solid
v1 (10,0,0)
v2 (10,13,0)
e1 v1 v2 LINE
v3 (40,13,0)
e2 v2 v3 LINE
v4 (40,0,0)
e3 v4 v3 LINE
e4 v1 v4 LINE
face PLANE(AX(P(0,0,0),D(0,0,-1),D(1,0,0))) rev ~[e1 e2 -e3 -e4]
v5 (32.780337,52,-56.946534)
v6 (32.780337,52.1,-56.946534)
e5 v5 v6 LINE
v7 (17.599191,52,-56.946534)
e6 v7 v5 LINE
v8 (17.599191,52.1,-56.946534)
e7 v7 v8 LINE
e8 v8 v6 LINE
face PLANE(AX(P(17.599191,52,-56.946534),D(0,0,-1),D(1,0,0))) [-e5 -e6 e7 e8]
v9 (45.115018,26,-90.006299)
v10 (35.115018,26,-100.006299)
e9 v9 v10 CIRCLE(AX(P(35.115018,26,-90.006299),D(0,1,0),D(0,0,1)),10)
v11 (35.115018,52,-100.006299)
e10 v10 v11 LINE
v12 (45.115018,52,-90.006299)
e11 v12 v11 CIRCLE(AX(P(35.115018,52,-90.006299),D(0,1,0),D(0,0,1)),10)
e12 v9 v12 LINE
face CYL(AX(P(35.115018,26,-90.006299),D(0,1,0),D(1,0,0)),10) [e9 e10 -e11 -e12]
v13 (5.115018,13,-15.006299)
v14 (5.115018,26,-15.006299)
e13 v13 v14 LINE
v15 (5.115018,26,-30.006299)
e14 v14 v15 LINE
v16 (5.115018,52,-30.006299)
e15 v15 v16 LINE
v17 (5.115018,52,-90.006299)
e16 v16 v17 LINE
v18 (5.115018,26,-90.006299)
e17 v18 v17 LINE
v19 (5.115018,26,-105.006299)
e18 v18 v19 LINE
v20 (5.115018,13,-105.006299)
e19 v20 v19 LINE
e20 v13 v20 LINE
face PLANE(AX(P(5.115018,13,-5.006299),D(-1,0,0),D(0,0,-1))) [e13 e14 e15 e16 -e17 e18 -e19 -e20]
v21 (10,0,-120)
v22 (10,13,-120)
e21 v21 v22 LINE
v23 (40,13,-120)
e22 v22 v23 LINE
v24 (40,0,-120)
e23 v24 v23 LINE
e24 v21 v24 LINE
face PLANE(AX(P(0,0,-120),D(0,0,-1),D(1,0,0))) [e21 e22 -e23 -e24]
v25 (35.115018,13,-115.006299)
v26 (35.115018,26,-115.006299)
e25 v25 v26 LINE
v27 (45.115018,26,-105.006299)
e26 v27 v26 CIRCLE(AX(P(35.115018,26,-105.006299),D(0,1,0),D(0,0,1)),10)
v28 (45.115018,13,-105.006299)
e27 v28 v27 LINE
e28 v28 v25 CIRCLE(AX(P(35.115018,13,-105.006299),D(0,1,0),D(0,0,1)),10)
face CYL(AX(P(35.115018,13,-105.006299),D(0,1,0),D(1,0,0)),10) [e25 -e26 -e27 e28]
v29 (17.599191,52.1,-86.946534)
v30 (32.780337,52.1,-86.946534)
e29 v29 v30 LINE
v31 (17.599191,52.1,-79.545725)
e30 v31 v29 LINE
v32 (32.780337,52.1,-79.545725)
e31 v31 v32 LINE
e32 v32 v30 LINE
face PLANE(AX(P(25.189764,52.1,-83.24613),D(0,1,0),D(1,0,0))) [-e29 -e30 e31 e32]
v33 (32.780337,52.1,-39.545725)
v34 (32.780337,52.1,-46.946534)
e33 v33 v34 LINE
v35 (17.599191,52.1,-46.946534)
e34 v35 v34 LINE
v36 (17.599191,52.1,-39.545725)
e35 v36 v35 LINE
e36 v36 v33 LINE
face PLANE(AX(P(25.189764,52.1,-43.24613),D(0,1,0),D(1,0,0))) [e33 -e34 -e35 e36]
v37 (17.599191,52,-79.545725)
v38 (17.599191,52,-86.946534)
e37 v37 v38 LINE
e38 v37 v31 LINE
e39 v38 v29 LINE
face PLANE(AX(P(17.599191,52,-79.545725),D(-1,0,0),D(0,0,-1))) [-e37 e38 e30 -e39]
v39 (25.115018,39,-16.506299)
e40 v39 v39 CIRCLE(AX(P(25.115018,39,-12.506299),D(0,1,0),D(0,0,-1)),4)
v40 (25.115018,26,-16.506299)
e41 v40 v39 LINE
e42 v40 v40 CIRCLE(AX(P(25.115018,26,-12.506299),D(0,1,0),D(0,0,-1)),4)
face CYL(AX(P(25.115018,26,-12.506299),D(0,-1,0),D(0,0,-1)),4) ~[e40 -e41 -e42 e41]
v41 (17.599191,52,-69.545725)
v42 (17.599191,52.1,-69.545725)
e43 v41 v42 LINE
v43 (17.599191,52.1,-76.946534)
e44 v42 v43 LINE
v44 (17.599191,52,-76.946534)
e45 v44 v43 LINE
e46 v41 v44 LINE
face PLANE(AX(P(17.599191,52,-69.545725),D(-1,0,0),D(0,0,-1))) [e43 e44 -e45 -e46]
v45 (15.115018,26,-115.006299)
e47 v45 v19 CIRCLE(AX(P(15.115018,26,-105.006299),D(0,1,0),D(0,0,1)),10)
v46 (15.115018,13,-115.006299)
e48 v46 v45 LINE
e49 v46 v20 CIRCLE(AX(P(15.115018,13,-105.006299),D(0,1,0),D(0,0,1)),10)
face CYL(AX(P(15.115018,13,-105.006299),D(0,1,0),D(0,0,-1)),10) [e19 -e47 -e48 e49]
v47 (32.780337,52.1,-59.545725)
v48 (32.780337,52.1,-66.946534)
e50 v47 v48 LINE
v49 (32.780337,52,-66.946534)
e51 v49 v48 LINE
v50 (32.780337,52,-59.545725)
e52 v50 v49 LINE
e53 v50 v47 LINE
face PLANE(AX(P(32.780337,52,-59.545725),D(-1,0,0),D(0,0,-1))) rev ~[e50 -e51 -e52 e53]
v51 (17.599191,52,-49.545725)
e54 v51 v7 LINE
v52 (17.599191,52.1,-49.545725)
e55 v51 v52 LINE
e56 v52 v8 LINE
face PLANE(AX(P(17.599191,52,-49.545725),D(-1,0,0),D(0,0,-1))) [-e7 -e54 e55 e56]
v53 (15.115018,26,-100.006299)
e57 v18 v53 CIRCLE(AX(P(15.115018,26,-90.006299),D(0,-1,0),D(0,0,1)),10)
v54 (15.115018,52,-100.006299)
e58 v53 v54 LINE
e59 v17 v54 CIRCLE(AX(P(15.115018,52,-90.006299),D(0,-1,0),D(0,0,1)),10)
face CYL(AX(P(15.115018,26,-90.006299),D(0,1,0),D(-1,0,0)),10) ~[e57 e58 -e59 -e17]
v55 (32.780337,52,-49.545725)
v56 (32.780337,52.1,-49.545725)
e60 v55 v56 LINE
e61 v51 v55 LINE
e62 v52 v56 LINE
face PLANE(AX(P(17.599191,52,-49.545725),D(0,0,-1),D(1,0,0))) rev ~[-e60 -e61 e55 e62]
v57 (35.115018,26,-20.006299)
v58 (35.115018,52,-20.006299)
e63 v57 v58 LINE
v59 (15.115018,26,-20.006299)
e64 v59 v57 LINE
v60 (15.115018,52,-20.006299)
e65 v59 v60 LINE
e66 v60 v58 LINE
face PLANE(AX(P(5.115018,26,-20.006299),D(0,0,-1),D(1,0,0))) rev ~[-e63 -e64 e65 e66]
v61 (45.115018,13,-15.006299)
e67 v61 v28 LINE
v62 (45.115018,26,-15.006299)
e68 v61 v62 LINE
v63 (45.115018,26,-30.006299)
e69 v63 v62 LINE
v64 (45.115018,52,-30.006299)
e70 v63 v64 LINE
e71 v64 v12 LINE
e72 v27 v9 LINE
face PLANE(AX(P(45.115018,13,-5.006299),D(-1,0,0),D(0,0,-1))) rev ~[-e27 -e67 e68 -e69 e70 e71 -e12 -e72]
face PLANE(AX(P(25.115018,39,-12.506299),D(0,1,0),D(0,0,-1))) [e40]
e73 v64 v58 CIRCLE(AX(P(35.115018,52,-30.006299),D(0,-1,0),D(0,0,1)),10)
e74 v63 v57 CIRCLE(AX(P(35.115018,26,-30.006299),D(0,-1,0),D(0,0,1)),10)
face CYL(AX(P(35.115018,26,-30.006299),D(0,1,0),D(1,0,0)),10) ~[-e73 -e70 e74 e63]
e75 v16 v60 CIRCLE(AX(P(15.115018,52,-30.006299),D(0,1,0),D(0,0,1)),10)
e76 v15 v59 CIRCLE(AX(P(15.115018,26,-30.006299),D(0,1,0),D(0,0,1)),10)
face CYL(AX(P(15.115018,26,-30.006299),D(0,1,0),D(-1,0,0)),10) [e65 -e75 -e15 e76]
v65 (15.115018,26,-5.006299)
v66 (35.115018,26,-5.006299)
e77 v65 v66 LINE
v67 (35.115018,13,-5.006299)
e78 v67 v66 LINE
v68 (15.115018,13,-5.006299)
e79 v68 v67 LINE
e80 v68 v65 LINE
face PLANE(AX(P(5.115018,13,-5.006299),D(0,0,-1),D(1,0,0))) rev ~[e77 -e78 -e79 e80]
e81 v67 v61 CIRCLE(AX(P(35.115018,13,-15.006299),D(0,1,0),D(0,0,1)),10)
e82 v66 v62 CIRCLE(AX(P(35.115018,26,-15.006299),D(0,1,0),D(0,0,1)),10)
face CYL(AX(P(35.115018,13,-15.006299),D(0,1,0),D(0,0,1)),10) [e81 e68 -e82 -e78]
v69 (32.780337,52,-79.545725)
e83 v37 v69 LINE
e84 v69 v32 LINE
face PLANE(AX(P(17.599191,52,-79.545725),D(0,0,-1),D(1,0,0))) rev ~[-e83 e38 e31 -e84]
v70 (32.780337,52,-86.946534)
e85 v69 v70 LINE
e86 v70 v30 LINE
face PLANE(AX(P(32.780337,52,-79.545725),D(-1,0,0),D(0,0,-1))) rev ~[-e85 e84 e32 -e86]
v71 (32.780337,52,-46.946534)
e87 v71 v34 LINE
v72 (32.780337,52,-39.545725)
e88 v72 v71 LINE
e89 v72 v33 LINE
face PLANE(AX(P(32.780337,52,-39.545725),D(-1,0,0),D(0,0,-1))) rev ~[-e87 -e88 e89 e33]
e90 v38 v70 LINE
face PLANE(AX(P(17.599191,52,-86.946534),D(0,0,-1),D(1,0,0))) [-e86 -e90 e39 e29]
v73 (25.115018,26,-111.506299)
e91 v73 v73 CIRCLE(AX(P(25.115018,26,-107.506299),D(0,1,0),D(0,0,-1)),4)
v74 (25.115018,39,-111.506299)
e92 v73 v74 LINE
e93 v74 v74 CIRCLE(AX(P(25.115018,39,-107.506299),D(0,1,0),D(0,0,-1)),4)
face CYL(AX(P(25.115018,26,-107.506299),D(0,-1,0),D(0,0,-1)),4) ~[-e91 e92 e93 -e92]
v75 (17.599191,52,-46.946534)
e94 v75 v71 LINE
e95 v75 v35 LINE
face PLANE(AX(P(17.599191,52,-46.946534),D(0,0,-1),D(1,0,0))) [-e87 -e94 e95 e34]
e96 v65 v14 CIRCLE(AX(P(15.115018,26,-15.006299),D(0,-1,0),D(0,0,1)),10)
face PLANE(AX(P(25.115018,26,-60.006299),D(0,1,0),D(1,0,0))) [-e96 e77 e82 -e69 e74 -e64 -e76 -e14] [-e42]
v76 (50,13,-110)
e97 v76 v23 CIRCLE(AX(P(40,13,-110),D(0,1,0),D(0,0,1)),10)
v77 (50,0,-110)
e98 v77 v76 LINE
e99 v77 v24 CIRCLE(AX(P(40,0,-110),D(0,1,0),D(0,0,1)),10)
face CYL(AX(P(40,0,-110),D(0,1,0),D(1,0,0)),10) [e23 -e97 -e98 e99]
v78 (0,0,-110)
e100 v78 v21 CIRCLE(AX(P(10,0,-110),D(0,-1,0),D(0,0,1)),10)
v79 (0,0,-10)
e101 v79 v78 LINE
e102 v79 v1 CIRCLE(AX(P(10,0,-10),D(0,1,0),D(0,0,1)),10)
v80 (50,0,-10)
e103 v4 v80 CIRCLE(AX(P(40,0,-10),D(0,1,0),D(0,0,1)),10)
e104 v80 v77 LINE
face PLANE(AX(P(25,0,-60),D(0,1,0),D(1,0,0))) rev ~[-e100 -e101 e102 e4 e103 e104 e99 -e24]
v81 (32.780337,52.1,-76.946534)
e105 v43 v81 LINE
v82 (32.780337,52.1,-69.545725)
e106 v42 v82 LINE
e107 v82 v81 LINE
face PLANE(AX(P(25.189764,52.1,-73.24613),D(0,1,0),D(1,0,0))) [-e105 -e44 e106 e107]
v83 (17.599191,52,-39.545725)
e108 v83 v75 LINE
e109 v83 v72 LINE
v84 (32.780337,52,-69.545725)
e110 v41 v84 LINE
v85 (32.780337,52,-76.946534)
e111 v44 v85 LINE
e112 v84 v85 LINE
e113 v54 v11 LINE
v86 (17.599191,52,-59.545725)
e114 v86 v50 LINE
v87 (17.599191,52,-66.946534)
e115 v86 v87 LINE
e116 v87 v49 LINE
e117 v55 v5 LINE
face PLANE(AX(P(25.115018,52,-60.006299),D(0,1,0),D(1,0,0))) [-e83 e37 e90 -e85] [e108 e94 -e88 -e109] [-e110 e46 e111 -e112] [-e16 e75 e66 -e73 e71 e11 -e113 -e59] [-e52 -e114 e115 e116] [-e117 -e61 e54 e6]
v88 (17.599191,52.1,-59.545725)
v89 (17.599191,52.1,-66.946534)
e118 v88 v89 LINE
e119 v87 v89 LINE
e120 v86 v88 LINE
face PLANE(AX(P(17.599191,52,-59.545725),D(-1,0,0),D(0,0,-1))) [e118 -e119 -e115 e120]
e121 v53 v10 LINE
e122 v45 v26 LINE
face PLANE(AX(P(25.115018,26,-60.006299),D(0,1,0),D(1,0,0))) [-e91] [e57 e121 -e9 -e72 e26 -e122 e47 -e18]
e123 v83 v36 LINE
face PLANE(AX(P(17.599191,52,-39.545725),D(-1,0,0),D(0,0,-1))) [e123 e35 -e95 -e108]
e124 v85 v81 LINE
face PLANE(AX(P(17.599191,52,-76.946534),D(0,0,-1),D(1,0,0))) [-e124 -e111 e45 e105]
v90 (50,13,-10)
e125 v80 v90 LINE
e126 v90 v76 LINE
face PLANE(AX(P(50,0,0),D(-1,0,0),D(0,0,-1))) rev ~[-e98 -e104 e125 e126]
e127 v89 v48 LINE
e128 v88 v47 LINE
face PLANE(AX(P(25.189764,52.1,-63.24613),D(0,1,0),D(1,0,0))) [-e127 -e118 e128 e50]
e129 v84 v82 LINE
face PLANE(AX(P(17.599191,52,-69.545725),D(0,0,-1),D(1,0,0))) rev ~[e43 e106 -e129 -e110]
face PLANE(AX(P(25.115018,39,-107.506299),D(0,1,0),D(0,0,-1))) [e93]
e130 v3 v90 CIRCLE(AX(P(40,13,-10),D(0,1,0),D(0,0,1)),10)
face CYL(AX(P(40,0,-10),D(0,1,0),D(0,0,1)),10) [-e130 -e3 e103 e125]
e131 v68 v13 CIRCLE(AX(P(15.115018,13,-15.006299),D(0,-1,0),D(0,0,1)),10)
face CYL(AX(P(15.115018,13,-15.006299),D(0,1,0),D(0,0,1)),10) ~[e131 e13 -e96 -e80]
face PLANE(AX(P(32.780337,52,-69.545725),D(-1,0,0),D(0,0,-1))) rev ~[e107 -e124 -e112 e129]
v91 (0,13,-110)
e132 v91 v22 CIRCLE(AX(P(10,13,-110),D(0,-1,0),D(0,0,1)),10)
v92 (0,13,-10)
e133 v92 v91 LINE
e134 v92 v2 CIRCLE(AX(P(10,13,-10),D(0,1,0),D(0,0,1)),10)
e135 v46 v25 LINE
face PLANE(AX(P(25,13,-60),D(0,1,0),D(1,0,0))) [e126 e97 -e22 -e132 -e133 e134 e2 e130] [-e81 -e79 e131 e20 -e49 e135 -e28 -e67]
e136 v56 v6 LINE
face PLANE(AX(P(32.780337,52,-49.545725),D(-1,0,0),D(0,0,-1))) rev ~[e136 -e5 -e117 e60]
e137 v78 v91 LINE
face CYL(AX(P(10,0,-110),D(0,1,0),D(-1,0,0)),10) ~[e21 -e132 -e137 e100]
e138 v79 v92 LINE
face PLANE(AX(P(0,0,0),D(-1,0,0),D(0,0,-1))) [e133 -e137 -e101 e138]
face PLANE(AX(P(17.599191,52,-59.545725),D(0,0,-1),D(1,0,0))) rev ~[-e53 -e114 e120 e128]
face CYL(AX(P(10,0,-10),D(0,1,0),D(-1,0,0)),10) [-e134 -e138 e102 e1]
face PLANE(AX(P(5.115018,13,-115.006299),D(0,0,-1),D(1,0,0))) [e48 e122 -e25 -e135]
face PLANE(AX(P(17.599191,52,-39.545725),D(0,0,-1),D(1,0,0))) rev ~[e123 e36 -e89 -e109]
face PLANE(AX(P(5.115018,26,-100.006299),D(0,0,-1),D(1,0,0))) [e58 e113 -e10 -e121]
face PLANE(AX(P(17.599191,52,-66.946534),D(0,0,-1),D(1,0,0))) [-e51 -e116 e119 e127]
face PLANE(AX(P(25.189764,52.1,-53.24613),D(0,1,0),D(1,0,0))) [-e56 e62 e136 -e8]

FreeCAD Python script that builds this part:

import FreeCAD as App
import Part
import Sketcher
Q = App.Units.Quantity


def edges_at(feature, points):
    """Names of the edges that pass closest to the given points."""
    edges = feature.Shape.Edges
    near = lambda p: min(range(len(edges)), key=lambda i: edges[i].distToShape(Part.Vertex(*p))[0])
    return sorted({f"Edge{near(p) + 1}" for p in points})

doc = App.newDocument("Part")
body = doc.addObject("PartDesign::Body", "Body")

# Sketch on XZ plane
sketch1 = doc.addObject("Sketcher::SketchObject", "Sketch")
body.addObject(sketch1)
sketch1.AttachmentSupport = (doc.XZ_Plane, [""])
sketch1.MapMode = "FlatFace"
sketch1.addGeometry([
    Part.LineSegment(App.Vector(0, -120, 0), App.Vector(0, 0, 0)),
    Part.LineSegment(App.Vector(0, 0, 0), App.Vector(50, 0, 0)),
    Part.LineSegment(App.Vector(50, 0, 0), App.Vector(50, -120, 0)),
    Part.LineSegment(App.Vector(50, -120, 0), App.Vector(0, -120, 0)),
], False)
sketch1.addConstraint([
    Sketcher.Constraint("Coincident", 0, 2, 1, 1),
    Sketcher.Constraint("Coincident", 1, 2, 2, 1),
    Sketcher.Constraint("Coincident", 2, 2, 3, 1),
    Sketcher.Constraint("Coincident", 3, 2, 0, 1),
    Sketcher.Constraint("Vertical", 0),
    Sketcher.Constraint("Horizontal", 1),
    Sketcher.Constraint("Vertical", 2),
    Sketcher.Constraint("Horizontal", 3),
    Sketcher.Constraint("Coincident", 0, 2, -1, 1),
    Sketcher.Constraint("DistanceX", 1, 1, 1, 2, Q("50 mm")),
    Sketcher.Constraint("DistanceY", 0, 1, 0, 2, Q("120 mm")),
])
pad1 = doc.addObject("PartDesign::Pad", "Pad")
body.addObject(pad1)
pad1.Profile = sketch1
pad1.Length = 13
pad1.Reversed = True
doc.recompute()

fillet = doc.addObject("PartDesign::Fillet", "Fillet")
body.addObject(fillet)
fillet.Base = (pad1, edges_at(pad1, [
    (0, 6.5, -120),
    (50, 6.5, -120),
    (50, 6.5, 0),
    (0, 6.5, 0),
]))
fillet.Radius = 10

# Sketch on XZ plane
sketch2 = doc.addObject("Sketcher::SketchObject", "Sketch001")
body.addObject(sketch2)
sketch2.AttachmentSupport = (doc.XZ_Plane, [""])
sketch2.MapMode = "FlatFace"
sketch2.AttachmentOffset = App.Placement(App.Vector(0, 0, -13), App.Rotation())
sketch2.addGeometry([
    Part.LineSegment(App.Vector(5, -115, 0), App.Vector(5, -5, 0)),
    Part.LineSegment(App.Vector(5, -5, 0), App.Vector(45, -5, 0)),
    Part.LineSegment(App.Vector(45, -5, 0), App.Vector(45, -115, 0)),
    Part.LineSegment(App.Vector(45, -115, 0), App.Vector(5, -115, 0)),
], False)
sketch2.addConstraint([
    Sketcher.Constraint("Coincident", 0, 2, 1, 1),
    Sketcher.Constraint("Coincident", 1, 2, 2, 1),
    Sketcher.Constraint("Coincident", 2, 2, 3, 1),
    Sketcher.Constraint("Coincident", 3, 2, 0, 1),
    Sketcher.Constraint("Vertical", 0),
    Sketcher.Constraint("Horizontal", 1),
    Sketcher.Constraint("Vertical", 2),
    Sketcher.Constraint("Horizontal", 3),
    Sketcher.Constraint("DistanceX", 1, 1, 1, 2, Q("40 mm")),
    Sketcher.Constraint("DistanceY", 0, 1, 0, 2, Q("110 mm")),
    Sketcher.Constraint("DistanceY", 0, 2, -1, 1, Q("5.006299 mm")),
    Sketcher.Constraint("DistanceX", -1, 1, 0, 2, Q("5.115018 mm")),
])
pad2 = doc.addObject("PartDesign::Pad", "Pad001")
body.addObject(pad2)
pad2.Profile = sketch2
pad2.Length = 13
pad2.Reversed = True

# Sketch on XZ plane
sketch3 = doc.addObject("Sketcher::SketchObject", "Sketch002")
body.addObject(sketch3)
sketch3.AttachmentSupport = (doc.XZ_Plane, [""])
sketch3.MapMode = "FlatFace"
sketch3.AttachmentOffset = App.Placement(App.Vector(0, 0, -26), App.Rotation())
sketch3.addGeometry([
    Part.LineSegment(App.Vector(5, -100, 0), App.Vector(5, -20, 0)),
    Part.LineSegment(App.Vector(5, -20, 0), App.Vector(45, -20, 0)),
    Part.LineSegment(App.Vector(45, -20, 0), App.Vector(45, -100, 0)),
    Part.LineSegment(App.Vector(45, -100, 0), App.Vector(5, -100, 0)),
], False)
sketch3.addConstraint([
    Sketcher.Constraint("Coincident", 0, 2, 1, 1),
    Sketcher.Constraint("Coincident", 1, 2, 2, 1),
    Sketcher.Constraint("Coincident", 2, 2, 3, 1),
    Sketcher.Constraint("Coincident", 3, 2, 0, 1),
    Sketcher.Constraint("Vertical", 0),
    Sketcher.Constraint("Horizontal", 1),
    Sketcher.Constraint("Vertical", 2),
    Sketcher.Constraint("Horizontal", 3),
    Sketcher.Constraint("DistanceX", 1, 1, 1, 2, Q("40 mm")),
    Sketcher.Constraint("DistanceY", 0, 1, 0, 2, Q("80 mm")),
    Sketcher.Constraint("DistanceY", 0, 2, -1, 1, Q("20.006299 mm")),
    Sketcher.Constraint("DistanceX", -1, 1, 0, 2, Q("5.115018 mm")),
])
pad3 = doc.addObject("PartDesign::Pad", "Pad002")
body.addObject(pad3)
pad3.Profile = sketch3
pad3.Length = 26
pad3.Reversed = True

# Sketch on XZ plane
sketch4 = doc.addObject("Sketcher::SketchObject", "Sketch003")
body.addObject(sketch4)
sketch4.AttachmentSupport = (doc.XZ_Plane, [""])
sketch4.MapMode = "FlatFace"
sketch4.AttachmentOffset = App.Placement(App.Vector(0, 0, -26), App.Rotation())
sketch4.addGeometry([
    Part.Circle(App.Vector(25.1, -107.5, 0), App.Vector(0, 0, 1), 4),
    Part.Circle(App.Vector(25.1, -12.5, 0), App.Vector(0, 0, 1), 4),
], False)
sketch4.addConstraint([
    Sketcher.Constraint("Equal", 0, 1),
    Sketcher.Constraint("Vertical", 0, 3, 1, 3),
    Sketcher.Constraint("Diameter", 0, Q("8 mm")),
    Sketcher.Constraint("DistanceY", 0, 3, 1, 3, Q("95 mm")),
    Sketcher.Constraint("DistanceY", 0, 3, -1, 1, Q("107.506299 mm")),
    Sketcher.Constraint("DistanceX", -1, 1, 0, 3, Q("25.115018 mm")),
])
pad4 = doc.addObject("PartDesign::Pad", "Pad003")
body.addObject(pad4)
pad4.Profile = sketch4
pad4.Length = 13
pad4.Reversed = True
doc.recompute()

fillet2 = doc.addObject("PartDesign::Fillet", "Fillet001")
body.addObject(fillet2)
fillet2.Base = (pad4, edges_at(pad4, [
    (5.115, 19.5, -115.006),
    (5.115, 19.5, -5.006),
    (45.115, 19.5, -5.006),
    (45.115, 19.5, -115.006),
    (5.115, 39, -100.006),
    (5.115, 39, -20.006),
    (45.115, 39, -20.006),
    (45.115, 39, -100.006),
]))
fillet2.Radius = 10

# Sketch on XZ plane
sketch5 = doc.addObject("Sketcher::SketchObject", "Sketch004")
body.addObject(sketch5)
sketch5.AttachmentSupport = (doc.XZ_Plane, [""])
sketch5.MapMode = "FlatFace"
sketch5.AttachmentOffset = App.Placement(App.Vector(0, 0, -52), App.Rotation())
sketch5.addGeometry([
    Part.LineSegment(App.Vector(18, -77, 0), App.Vector(18, -70, 0)),  # 0
    Part.LineSegment(App.Vector(18, -70, 0), App.Vector(33, -70, 0)),  # 1
    Part.LineSegment(App.Vector(33, -70, 0), App.Vector(33, -77, 0)),  # 2
    Part.LineSegment(App.Vector(33, -77, 0), App.Vector(18, -77, 0)),  # 3
    Part.LineSegment(App.Vector(18, -87, 0), App.Vector(18, -80, 0)),  # 4
    Part.LineSegment(App.Vector(18, -80, 0), App.Vector(33, -80, 0)),  # 5
    Part.LineSegment(App.Vector(33, -80, 0), App.Vector(33, -87, 0)),  # 6
    Part.LineSegment(App.Vector(33, -87, 0), App.Vector(18, -87, 0)),  # 7
    Part.LineSegment(App.Vector(18, -67, 0), App.Vector(18, -60, 0)),  # 8
    Part.LineSegment(App.Vector(18, -60, 0), App.Vector(33, -60, 0)),  # 9
    Part.LineSegment(App.Vector(33, -60, 0), App.Vector(33, -67, 0)),  # 10
    Part.LineSegment(App.Vector(33, -67, 0), App.Vector(18, -67, 0)),  # 11
    Part.LineSegment(App.Vector(18, -57, 0), App.Vector(18, -50, 0)),  # 12
    Part.LineSegment(App.Vector(18, -50, 0), App.Vector(33, -50, 0)),  # 13
    Part.LineSegment(App.Vector(33, -50, 0), App.Vector(33, -57, 0)),  # 14
    Part.LineSegment(App.Vector(33, -57, 0), App.Vector(18, -57, 0)),  # 15
    Part.LineSegment(App.Vector(18, -47, 0), App.Vector(18, -40, 0)),  # 16
    Part.LineSegment(App.Vector(18, -40, 0), App.Vector(33, -40, 0)),  # 17
    Part.LineSegment(App.Vector(33, -40, 0), App.Vector(33, -47, 0)),  # 18
    Part.LineSegment(App.Vector(33, -47, 0), App.Vector(18, -47, 0)),  # 19
], False)
sketch5.addConstraint([
    Sketcher.Constraint("Coincident", 0, 2, 1, 1),
    Sketcher.Constraint("Coincident", 1, 2, 2, 1),
    Sketcher.Constraint("Coincident", 2, 2, 3, 1),
    Sketcher.Constraint("Coincident", 3, 2, 0, 1),
    Sketcher.Constraint("Coincident", 4, 2, 5, 1),
    Sketcher.Constraint("Coincident", 5, 2, 6, 1),
    Sketcher.Constraint("Coincident", 6, 2, 7, 1),
    Sketcher.Constraint("Coincident", 7, 2, 4, 1),
    Sketcher.Constraint("Coincident", 8, 2, 9, 1),
    Sketcher.Constraint("Coincident", 9, 2, 10, 1),
    Sketcher.Constraint("Coincident", 10, 2, 11, 1),
    Sketcher.Constraint("Coincident", 11, 2, 8, 1),
    Sketcher.Constraint("Coincident", 12, 2, 13, 1),
    Sketcher.Constraint("Coincident", 13, 2, 14, 1),
    Sketcher.Constraint("Coincident", 14, 2, 15, 1),
    Sketcher.Constraint("Coincident", 15, 2, 12, 1),
    Sketcher.Constraint("Coincident", 16, 2, 17, 1),
    Sketcher.Constraint("Coincident", 17, 2, 18, 1),
    Sketcher.Constraint("Coincident", 18, 2, 19, 1),
    Sketcher.Constraint("Coincident", 19, 2, 16, 1),
    Sketcher.Constraint("Vertical", 0),
    Sketcher.Constraint("Horizontal", 1),
    Sketcher.Constraint("Vertical", 2),
    Sketcher.Constraint("Horizontal", 3),
    Sketcher.Constraint("Vertical", 4),
    Sketcher.Constraint("Horizontal", 5),
    Sketcher.Constraint("Vertical", 6),
    Sketcher.Constraint("Horizontal", 7),
    Sketcher.Constraint("Vertical", 8),
    Sketcher.Constraint("Horizontal", 9),
    Sketcher.Constraint("Vertical", 10),
    Sketcher.Constraint("Horizontal", 11),
    Sketcher.Constraint("Vertical", 12),
    Sketcher.Constraint("Horizontal", 13),
    Sketcher.Constraint("Vertical", 14),
    Sketcher.Constraint("Horizontal", 15),
    Sketcher.Constraint("Vertical", 16),
    Sketcher.Constraint("Horizontal", 17),
    Sketcher.Constraint("Vertical", 18),
    Sketcher.Constraint("Horizontal", 19),
    Sketcher.Constraint("Vertical", 3, 2, 4, 2),
    Sketcher.Constraint("Vertical", 2, 2, 5, 2),
    Sketcher.Constraint("Vertical", 7, 2, 8, 2),
    Sketcher.Constraint("Vertical", 6, 2, 9, 2),
    Sketcher.Constraint("Vertical", 11, 2, 12, 2),
    Sketcher.Constraint("Vertical", 10, 2, 13, 2),
    Sketcher.Constraint("Vertical", 15, 2, 16, 2),
    Sketcher.Constraint("Vertical", 14, 2, 17, 2),
    Sketcher.Constraint("Equal", 2, 4),
    Sketcher.Constraint("Equal", 6, 8),
    Sketcher.Constraint("Equal", 10, 12),
    Sketcher.Constraint("Equal", 14, 16),
    Sketcher.Constraint("DistanceY", 4, 2, 0, 2, Q("10 mm")),
    Sketcher.Constraint("DistanceY", 0, 2, 8, 2, Q("10 mm")),
    Sketcher.Constraint("DistanceY", 8, 2, 12, 2, Q("10 mm")),
    Sketcher.Constraint("DistanceY", 12, 2, 16, 2, Q("10 mm")),
    Sketcher.Constraint("DistanceY", 0, 1, 0, 2, Q("7.400809 mm")),
    Sketcher.Constraint("DistanceX", 1, 1, 1, 2, Q("15.181146 mm")),
    Sketcher.Constraint("DistanceX", -1, 1, 0, 2, Q("17.599191 mm")),
    Sketcher.Constraint("DistanceY", 0, 2, -1, 1, Q("69.545725 mm")),
])
pad5 = doc.addObject("PartDesign::Pad", "Pad004")
body.addObject(pad5)
pad5.Profile = sketch5
pad5.Length = 0.1
pad5.Reversed = True

doc.recompute()
